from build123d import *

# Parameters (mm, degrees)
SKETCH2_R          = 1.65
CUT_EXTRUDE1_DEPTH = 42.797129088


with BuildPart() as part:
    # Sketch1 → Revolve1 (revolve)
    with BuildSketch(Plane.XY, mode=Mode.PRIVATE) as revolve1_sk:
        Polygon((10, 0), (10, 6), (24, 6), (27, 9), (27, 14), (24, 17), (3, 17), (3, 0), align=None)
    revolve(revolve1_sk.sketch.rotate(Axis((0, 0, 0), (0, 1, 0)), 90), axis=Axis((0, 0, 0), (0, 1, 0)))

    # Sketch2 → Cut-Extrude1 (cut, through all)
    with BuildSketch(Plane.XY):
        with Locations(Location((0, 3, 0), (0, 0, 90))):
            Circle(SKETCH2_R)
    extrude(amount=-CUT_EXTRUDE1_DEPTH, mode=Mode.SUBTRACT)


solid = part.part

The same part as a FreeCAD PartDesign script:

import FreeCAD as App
import Part
import Sketcher
from FreeCAD import Vector
Q = App.Units.Quantity


def add_polygon(sketch, points):
    """Adds a closed chain of lines whose ends are joined by coincident constraints."""
    first, n = sketch.GeometryCount, len(points)
    for a, b in zip(points, points[1:] + points[:1]):
        sketch.addGeometry(Part.LineSegment(App.Vector(*a, 0), App.Vector(*b, 0)), False)
    for i in range(n):
        sketch.addConstraint(Sketcher.Constraint("Coincident", first + i, 2, first + (i + 1) % n, 1))

doc = App.newDocument("Part")
body = doc.addObject("PartDesign::Body", "Body")

# Sketch on XY plane
sketch1 = body.newObject("Sketcher::SketchObject", "Sketch")
sketch1.AttachmentSupport = (doc.getObject("XY_Plane"), [""])
sketch1.MapMode = "FlatFace"
add_polygon(sketch1, [(10, 0), (10, 6), (24, 6), (27, 9), (27, 14), (24, 17), (3, 17), (3, 0)])  # lines 0-7
sketch1.addConstraint(Sketcher.Constraint("Vertical", 0))
sketch1.addConstraint(Sketcher.Constraint("Horizontal", 1))
sketch1.addConstraint(Sketcher.Constraint("Vertical", 3))
sketch1.addConstraint(Sketcher.Constraint("Horizontal", 5))
sketch1.addConstraint(Sketcher.Constraint("Vertical", 6))
sketch1.addConstraint(Sketcher.Constraint("Horizontal", 7))
sketch1.addConstraint(Sketcher.Constraint("PointOnObject", 6, 2, -1))
sketch1.addConstraint(Sketcher.Constraint("Perpendicular", 2, 4))
sketch1.addConstraint(Sketcher.Constraint("Vertical", 1, 2, 4, 2))
sketch1.addConstraint(Sketcher.Constraint("Equal", 2, 4))
sketch1.addConstraint(Sketcher.Constraint("DistanceX", 1, 1, 1, 2, Q("14 mm")))
sketch1.addConstraint(Sketcher.Constraint("DistanceX", 5, 2, 5, 1, Q("21 mm")))
sketch1.addConstraint(Sketcher.Constraint("DistanceY", 0, 1, 0, 2, Q("6 mm")))
sketch1.addConstraint(Sketcher.Constraint("DistanceY", 3, 1, 3, 2, Q("5 mm")))
sketch1.addConstraint(Sketcher.Constraint("DistanceY", 6, 2, 6, 1, Q("17 mm")))
sketch1.addConstraint(Sketcher.Constraint("DistanceX", -1, 1, 0, 2, Q("10 mm")))
revolution = body.newObject("PartDesign::Revolution", "Revolution")
revolution.Profile = sketch1
revolution.ReferenceAxis = (sketch1, ["V_Axis"])
revolution.Angle = 360

# Sketch on XY plane
sketch2 = body.newObject("Sketcher::SketchObject", "Sketch001")
sketch2.AttachmentSupport = (doc.getObject("XY_Plane"), [""])
sketch2.MapMode = "FlatFace"
sketch2.addGeometry(Part.Circle(Vector(0, 3, 0), Vector(0, 0, 1), 1.6), False)
sketch2.addConstraint(Sketcher.Constraint("PointOnObject", 0, 3, -2))
sketch2.addConstraint(Sketcher.Constraint("Diameter", 0, Q("3.3 mm")))
sketch2.addConstraint(Sketcher.Constraint("DistanceY", -1, 1, 0, 3, Q("3 mm")))
pocket1 = body.newObject("PartDesign::Pocket", "Pocket")
pocket1.Profile = sketch2
pocket1.Type = "ThroughAll"

doc.recompute()
